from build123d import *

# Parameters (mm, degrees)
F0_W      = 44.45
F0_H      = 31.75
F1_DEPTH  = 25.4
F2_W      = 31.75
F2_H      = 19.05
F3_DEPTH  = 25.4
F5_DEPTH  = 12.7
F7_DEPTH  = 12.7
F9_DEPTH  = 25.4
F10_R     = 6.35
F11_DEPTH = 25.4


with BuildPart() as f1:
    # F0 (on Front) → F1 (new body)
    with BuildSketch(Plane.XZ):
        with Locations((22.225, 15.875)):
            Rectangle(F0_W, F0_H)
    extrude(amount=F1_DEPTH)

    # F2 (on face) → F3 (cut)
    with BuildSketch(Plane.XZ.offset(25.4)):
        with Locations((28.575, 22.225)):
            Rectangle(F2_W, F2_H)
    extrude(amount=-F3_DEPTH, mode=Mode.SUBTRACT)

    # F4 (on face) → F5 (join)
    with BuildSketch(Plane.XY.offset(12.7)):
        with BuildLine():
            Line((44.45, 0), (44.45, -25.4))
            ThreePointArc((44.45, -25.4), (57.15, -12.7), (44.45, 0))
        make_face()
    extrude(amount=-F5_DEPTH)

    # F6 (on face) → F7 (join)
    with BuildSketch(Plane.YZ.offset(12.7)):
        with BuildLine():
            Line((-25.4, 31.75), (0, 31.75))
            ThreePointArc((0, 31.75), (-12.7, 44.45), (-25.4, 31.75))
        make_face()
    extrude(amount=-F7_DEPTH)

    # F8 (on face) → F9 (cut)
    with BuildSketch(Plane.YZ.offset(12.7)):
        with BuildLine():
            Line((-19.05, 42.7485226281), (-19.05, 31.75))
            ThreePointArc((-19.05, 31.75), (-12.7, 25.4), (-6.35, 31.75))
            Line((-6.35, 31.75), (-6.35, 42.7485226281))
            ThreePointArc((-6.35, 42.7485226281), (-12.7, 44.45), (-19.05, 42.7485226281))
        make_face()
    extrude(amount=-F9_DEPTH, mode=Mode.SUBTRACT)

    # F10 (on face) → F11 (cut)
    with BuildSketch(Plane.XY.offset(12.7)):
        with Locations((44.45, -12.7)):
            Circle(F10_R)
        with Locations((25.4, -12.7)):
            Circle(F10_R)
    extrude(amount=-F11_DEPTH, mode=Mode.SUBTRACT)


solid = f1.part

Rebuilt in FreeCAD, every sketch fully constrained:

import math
import FreeCAD as App
import Part
import Sketcher
Q = App.Units.Quantity


def add_polygon(sketch, points):
    """Adds a closed chain of lines whose ends are joined by coincident constraints."""
    first, n = sketch.GeometryCount, len(points)
    for a, b in zip(points, points[1:] + points[:1]):
        sketch.addGeometry(Part.LineSegment(App.Vector(*a, 0), App.Vector(*b, 0)), False)
    for i in range(n):
        sketch.addConstraint(Sketcher.Constraint("Coincident", first + i, 2, first + (i + 1) % n, 1))

doc = App.newDocument("Part")
params = doc.addObject("Spreadsheet::Sheet", "Params")
for row, (alias, value) in enumerate([
    ("sketch1_width", "1.75 in"),
    ("sketch1_height", "1.25 in"),
    ("pad1_length", "1 in"),
    ("sketch2_width", "1.25 in"),
    ("sketch2_height", "0.75 in"),
    ("pocket1_length", "1 in"),
    ("sketch3_radius", "0.5 in"),
    ("pad2_length", "0.5 in"),
    ("sketch4_radius", "0.5 in"),
    ("pad3_length", "0.5 in"),
    ("sketch5_radius", "0.5 in"),
    ("sketch5_radius2", "0.25 in"),
    ("pocket2_length", "1 in"),
    ("sketch6_diameter", "0.5 in"),
    ("pocket3_length", "1 in"),
], start=1):
    params.set(f"A{row}", alias)
    params.set(f"B{row}", "=" + value)
    params.setAlias(f"B{row}", alias)

body = doc.addObject("PartDesign::Body", "Body")

sketch1 = body.newObject("Sketcher::SketchObject", "Sketch")
sketch1.AttachmentSupport = (doc.getObject("XZ_Plane"), [""])
sketch1.MapMode = "FlatFace"
add_polygon(sketch1, [(0, 32), (0, 0), (44, 0), (44, 32)])
sketch1.addConstraint([
    Sketcher.Constraint("Vertical", 0),
    Sketcher.Constraint("Horizontal", 1),
    Sketcher.Constraint("Vertical", 2),
    Sketcher.Constraint("Horizontal", 3),
    Sketcher.Constraint("Coincident", 0, 2, -1, 1),
    Sketcher.Constraint("DistanceX", 1, 1, 1, 2, Q("1.75 in")),
    Sketcher.Constraint("DistanceY", 0, 2, 0, 1, Q("1.25 in")),
])
sketch1.setExpression("Constraints[9]", "Params.sketch1_width")
sketch1.setExpression("Constraints[10]", "Params.sketch1_height")
pad1 = body.newObject("PartDesign::Pad", "Pad")
pad1.Profile = sketch1
pad1.setExpression("Length", "Params.pad1_length")

sketch2 = body.newObject("Sketcher::SketchObject", "Sketch001")
sketch2.AttachmentSupport = (doc.getObject("XZ_Plane"), [""])
sketch2.MapMode = "FlatFace"
sketch2.AttachmentOffset = App.Placement(App.Vector(0, 0, 1 * 25.4), App.Rotation())
add_polygon(sketch2, [(13, 32), (13, 13), (44, 13), (44, 32)])
sketch2.addConstraint([
    Sketcher.Constraint("Vertical", 0),
    Sketcher.Constraint("Horizontal", 1),
    Sketcher.Constraint("Vertical", 2),
    Sketcher.Constraint("Horizontal", 3),
    Sketcher.Constraint("DistanceX", 1, 1, 1, 2, Q("1.25 in")),
    Sketcher.Constraint("DistanceY", 0, 2, 0, 1, Q("0.75 in")),
    Sketcher.Constraint("DistanceX", -1, 1, 0, 2, Q("0.5 in")),
    Sketcher.Constraint("DistanceY", -1, 1, 0, 2, Q("0.5 in")),
])
sketch2.setExpression("Constraints[8]", "Params.sketch2_width")
sketch2.setExpression("Constraints[9]", "Params.sketch2_height")
pocket1 = body.newObject("PartDesign::Pocket", "Pocket")
pocket1.Profile = sketch2
pocket1.setExpression("Length", "Params.pocket1_length")

sketch3 = body.newObject("Sketcher::SketchObject", "Sketch002")
sketch3.AttachmentSupport = (doc.getObject("XY_Plane"), [""])
sketch3.MapMode = "FlatFace"
sketch3.AttachmentOffset = App.Placement(App.Vector(0, 0, 0.5 * 25.4), App.Rotation())
sketch3.addGeometry([
    Part.LineSegment(App.Vector(44, 0, 0), App.Vector(44, -25, 0)),
    Part.ArcOfCircle(Part.Circle(App.Vector(44, -13, 0), App.Vector(0, 0, 1), 13), math.radians(-90), math.radians(90)),
], False)
sketch3.addConstraint([
    Sketcher.Constraint("Coincident", 0, 1, 1, 2),
    Sketcher.Constraint("Coincident", 1, 1, 0, 2),
    Sketcher.Constraint("Vertical", 0),
    Sketcher.Constraint("PointOnObject", 0, 1, -1),
    Sketcher.Constraint("Vertical", 1, 3, 0, 1),
    Sketcher.Constraint("Radius", 1, Q("0.5 in")),
    Sketcher.Constraint("DistanceX", -1, 1, 1, 3, Q("1.75 in")),
])
sketch3.setExpression("Constraints[5]", "Params.sketch3_radius")
pad2 = body.newObject("PartDesign::Pad", "Pad001")
pad2.Profile = sketch3
pad2.setExpression("Length", "Params.pad2_length")
pad2.Reversed = True

sketch4 = body.newObject("Sketcher::SketchObject", "Sketch003")
sketch4.AttachmentSupport = (doc.getObject("YZ_Plane"), [""])
sketch4.MapMode = "FlatFace"
sketch4.AttachmentOffset = App.Placement(App.Vector(0, 0, 0.5 * 25.4), App.Rotation())
sketch4.addGeometry([
    Part.LineSegment(App.Vector(-25, 32, 0), App.Vector(0, 32, 0)),
    Part.ArcOfCircle(Part.Circle(App.Vector(-13, 32, 0), App.Vector(0, 0, 1), 13), math.radians(0), math.radians(180)),
], False)
sketch4.addConstraint([
    Sketcher.Constraint("Coincident", 0, 1, 1, 2),
    Sketcher.Constraint("Coincident", 1, 1, 0, 2),
    Sketcher.Constraint("Horizontal", 0),
    Sketcher.Constraint("PointOnObject", 1, 1, -2),
    Sketcher.Constraint("Horizontal", 1, 3, 0, 1),
    Sketcher.Constraint("Radius", 1, Q("0.5 in")),
    Sketcher.Constraint("DistanceY", -1, 1, 1, 3, Q("1.25 in")),
])
sketch4.setExpression("Constraints[5]", "Params.sketch4_radius")
pad3 = body.newObject("PartDesign::Pad", "Pad002")
pad3.Profile = sketch4
pad3.setExpression("Length", "Params.pad3_length")
pad3.Reversed = True

sketch5 = body.newObject("Sketcher::SketchObject", "Sketch004")
sketch5.AttachmentSupport = (doc.getObject("YZ_Plane"), [""])
sketch5.MapMode = "FlatFace"
sketch5.AttachmentOffset = App.Placement(App.Vector(0, 0, 0.5 * 25.4), App.Rotation())
sketch5.addGeometry([
    Part.LineSegment(App.Vector(-19, 43, 0), App.Vector(-19, 32, 0)),
    Part.ArcOfCircle(Part.Circle(App.Vector(-13, 32, 0), App.Vector(0, 0, 1), 6), math.radians(180), math.radians(360)),
    Part.LineSegment(App.Vector(-6, 32, 0), App.Vector(-6, 43, 0)),
    Part.ArcOfCircle(Part.Circle(App.Vector(-13, 32, 0), App.Vector(0, 0, 1), 13), math.radians(60), math.radians(120)),
], False)
sketch5.addConstraint([
    Sketcher.Constraint("Tangent", 0, 2, 1, 1),
    Sketcher.Constraint("Tangent", 1, 2, 2, 1),
    Sketcher.Constraint("Coincident", 2, 2, 3, 1),
    Sketcher.Constraint("Coincident", 3, 2, 0, 1),
    Sketcher.Constraint("Vertical", 0),
    Sketcher.Constraint("Vertical", 2),
    Sketcher.Constraint("Coincident", 3, 3, 1, 3),
    Sketcher.Constraint("Radius", 3, Q("0.5 in")),
    Sketcher.Constraint("Radius", 1, Q("0.25 in")),
    Sketcher.Constraint("DistanceX", 1, 3, -1, 1, Q("0.5 in")),
    Sketcher.Constraint("DistanceY", -1, 1, 1, 3, Q("1.25 in")),
])
sketch5.setExpression("Constraints[7]", "Params.sketch5_radius")
sketch5.setExpression("Constraints[8]", "Params.sketch5_radius2")
pocket2 = body.newObject("PartDesign::Pocket", "Pocket001")
pocket2.Profile = sketch5
pocket2.setExpression("Length", "Params.pocket2_length")

sketch6 = body.newObject("Sketcher::SketchObject", "Sketch005")
sketch6.AttachmentSupport = (doc.getObject("XY_Plane"), [""])
sketch6.MapMode = "FlatFace"
sketch6.AttachmentOffset = App.Placement(App.Vector(0, 0, 0.5 * 25.4), App.Rotation())
sketch6.addGeometry([
    Part.Circle(App.Vector(44, -13, 0), App.Vector(0, 0, 1), 6),
    Part.Circle(App.Vector(25, -13, 0), App.Vector(0, 0, 1), 6),
], False)
sketch6.addConstraint([
    Sketcher.Constraint("Equal", 0, 1),
    Sketcher.Constraint("Horizontal", 0, 3, 1, 3),
    Sketcher.Constraint("Diameter", 0, Q("0.5 in")),
    Sketcher.Constraint("DistanceX", -1, 1, 1, 3, Q("1 in")),
    Sketcher.Constraint("DistanceY", 0, 3, -1, 1, Q("0.5 in")),
    Sketcher.Constraint("DistanceX", -1, 1, 0, 3, Q("1.75 in")),
])
sketch6.setExpression("Constraints[2]", "Params.sketch6_diameter")
pocket3 = body.newObject("PartDesign::Pocket", "Pocket002")
pocket3.Profile = sketch6
pocket3.setExpression("Length", "Params.pocket3_length")

doc.recompute()
